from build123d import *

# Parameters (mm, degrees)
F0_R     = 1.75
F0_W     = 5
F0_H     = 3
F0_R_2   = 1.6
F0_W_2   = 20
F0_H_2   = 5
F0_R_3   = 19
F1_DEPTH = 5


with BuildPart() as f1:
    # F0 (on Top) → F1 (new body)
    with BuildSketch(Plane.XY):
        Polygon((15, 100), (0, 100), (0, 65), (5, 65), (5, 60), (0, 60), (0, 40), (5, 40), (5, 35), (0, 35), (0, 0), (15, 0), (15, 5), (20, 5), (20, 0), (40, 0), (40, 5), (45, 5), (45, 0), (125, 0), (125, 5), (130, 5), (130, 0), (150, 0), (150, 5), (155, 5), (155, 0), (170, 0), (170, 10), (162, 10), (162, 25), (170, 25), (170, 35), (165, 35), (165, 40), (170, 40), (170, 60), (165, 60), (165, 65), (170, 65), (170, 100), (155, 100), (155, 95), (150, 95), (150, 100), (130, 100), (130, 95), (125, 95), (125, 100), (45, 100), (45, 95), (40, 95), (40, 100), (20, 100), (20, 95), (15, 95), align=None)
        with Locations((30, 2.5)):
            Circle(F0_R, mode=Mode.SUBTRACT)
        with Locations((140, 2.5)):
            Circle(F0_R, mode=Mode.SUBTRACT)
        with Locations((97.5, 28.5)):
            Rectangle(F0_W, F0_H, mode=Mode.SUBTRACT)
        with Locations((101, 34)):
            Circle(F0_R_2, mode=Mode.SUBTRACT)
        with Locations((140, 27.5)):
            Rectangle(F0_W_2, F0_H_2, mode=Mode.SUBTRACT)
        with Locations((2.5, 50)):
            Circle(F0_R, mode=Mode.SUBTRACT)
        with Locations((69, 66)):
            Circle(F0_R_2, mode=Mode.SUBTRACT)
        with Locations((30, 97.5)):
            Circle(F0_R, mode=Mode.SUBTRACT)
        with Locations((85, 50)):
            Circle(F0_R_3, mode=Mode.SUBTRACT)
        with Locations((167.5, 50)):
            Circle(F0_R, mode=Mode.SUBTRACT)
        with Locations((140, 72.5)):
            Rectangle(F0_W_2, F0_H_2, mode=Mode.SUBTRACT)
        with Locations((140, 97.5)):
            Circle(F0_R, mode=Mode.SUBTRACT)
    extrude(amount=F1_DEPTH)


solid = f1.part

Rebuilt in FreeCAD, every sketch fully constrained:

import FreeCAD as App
import Part
import Sketcher
from FreeCAD import Vector

doc = App.newDocument("Part")
body = doc.addObject("PartDesign::Body", "Body")

# Sketch on XY plane
sketch1 = body.newObject("Sketcher::SketchObject", "Sketch")
sketch1.AttachmentSupport = (doc.getObject("XY_Plane"), [""])
sketch1.MapMode = "FlatFace"
sketch1.addGeometry([
    Part.LineSegment(Vector(15, 100, 0), Vector(0, 100, 0)),  # 0
    Part.LineSegment(Vector(0, 100, 0), Vector(0, 65, 0)),  # 1
    Part.LineSegment(Vector(0, 65, 0), Vector(5, 65, 0)),  # 2
    Part.LineSegment(Vector(5, 65, 0), Vector(5, 60, 0)),  # 3
    Part.LineSegment(Vector(5, 60, 0), Vector(0, 60, 0)),  # 4
    Part.LineSegment(Vector(0, 60, 0), Vector(0, 40, 0)),  # 5
    Part.LineSegment(Vector(0, 40, 0), Vector(5, 40, 0)),  # 6
    Part.LineSegment(Vector(5, 40, 0), Vector(5, 35, 0)),  # 7
    Part.LineSegment(Vector(5, 35, 0), Vector(0, 35, 0)),  # 8
    Part.LineSegment(Vector(0, 35, 0), Vector(0, 0, 0)),  # 9
    Part.LineSegment(Vector(0, 0, 0), Vector(15, 0, 0)),  # 10
    Part.LineSegment(Vector(15, 0, 0), Vector(15, 5, 0)),  # 11
    Part.LineSegment(Vector(15, 5, 0), Vector(20, 5, 0)),  # 12
    Part.LineSegment(Vector(20, 5, 0), Vector(20, 0, 0)),  # 13
    Part.LineSegment(Vector(20, 0, 0), Vector(40, 0, 0)),  # 14
    Part.LineSegment(Vector(40, 0, 0), Vector(40, 5, 0)),  # 15
    Part.LineSegment(Vector(40, 5, 0), Vector(45, 5, 0)),  # 16
    Part.LineSegment(Vector(45, 5, 0), Vector(45, 0, 0)),  # 17
    Part.LineSegment(Vector(45, 0, 0), Vector(125, 0, 0)),  # 18
    Part.LineSegment(Vector(125, 0, 0), Vector(125, 5, 0)),  # 19
    Part.LineSegment(Vector(125, 5, 0), Vector(130, 5, 0)),  # 20
    Part.LineSegment(Vector(130, 5, 0), Vector(130, 0, 0)),  # 21
    Part.LineSegment(Vector(130, 0, 0), Vector(150, 0, 0)),  # 22
    Part.LineSegment(Vector(150, 0, 0), Vector(150, 5, 0)),  # 23
    Part.LineSegment(Vector(150, 5, 0), Vector(155, 5, 0)),  # 24
    Part.LineSegment(Vector(155, 5, 0), Vector(155, 0, 0)),  # 25
    Part.LineSegment(Vector(155, 0, 0), Vector(170, 0, 0)),  # 26
    Part.LineSegment(Vector(170, 0, 0), Vector(170, 10, 0)),  # 27
    Part.LineSegment(Vector(170, 10, 0), Vector(162, 10, 0)),  # 28
    Part.LineSegment(Vector(162, 10, 0), Vector(162, 25, 0)),  # 29
    Part.LineSegment(Vector(162, 25, 0), Vector(170, 25, 0)),  # 30
    Part.LineSegment(Vector(170, 25, 0), Vector(170, 35, 0)),  # 31
    Part.LineSegment(Vector(170, 35, 0), Vector(165, 35, 0)),  # 32
    Part.LineSegment(Vector(165, 35, 0), Vector(165, 40, 0)),  # 33
    Part.LineSegment(Vector(165, 40, 0), Vector(170, 40, 0)),  # 34
    Part.LineSegment(Vector(170, 40, 0), Vector(170, 60, 0)),  # 35
    Part.LineSegment(Vector(170, 60, 0), Vector(165, 60, 0)),  # 36
    Part.LineSegment(Vector(165, 60, 0), Vector(165, 65, 0)),  # 37
    Part.LineSegment(Vector(165, 65, 0), Vector(170, 65, 0)),  # 38
    Part.LineSegment(Vector(170, 65, 0), Vector(170, 100, 0)),  # 39
    Part.LineSegment(Vector(170, 100, 0), Vector(155, 100, 0)),  # 40
    Part.LineSegment(Vector(155, 100, 0), Vector(155, 95, 0)),  # 41
    Part.LineSegment(Vector(155, 95, 0), Vector(150, 95, 0)),  # 42
    Part.LineSegment(Vector(150, 95, 0), Vector(150, 100, 0)),  # 43
    Part.LineSegment(Vector(150, 100, 0), Vector(130, 100, 0)),  # 44
    Part.LineSegment(Vector(130, 100, 0), Vector(130, 95, 0)),  # 45
    Part.LineSegment(Vector(130, 95, 0), Vector(125, 95, 0)),  # 46
    Part.LineSegment(Vector(125, 95, 0), Vector(125, 100, 0)),  # 47
    Part.LineSegment(Vector(125, 100, 0), Vector(45, 100, 0)),  # 48
    Part.LineSegment(Vector(45, 100, 0), Vector(45, 95, 0)),  # 49
    Part.LineSegment(Vector(45, 95, 0), Vector(40, 95, 0)),  # 50
    Part.LineSegment(Vector(40, 95, 0), Vector(40, 100, 0)),  # 51
    Part.LineSegment(Vector(40, 100, 0), Vector(20, 100, 0)),  # 52
    Part.LineSegment(Vector(20, 100, 0), Vector(20, 95, 0)),  # 53
    Part.LineSegment(Vector(20, 95, 0), Vector(15, 95, 0)),  # 54
    Part.LineSegment(Vector(15, 95, 0), Vector(15, 100, 0)),  # 55
    Part.Circle(Vector(30, 2.5, 0), Vector(0, 0, 1), 1.8),  # 56
    Part.Circle(Vector(2.5, 50, 0), Vector(0, 0, 1), 1.8),  # 57
    Part.Circle(Vector(140, 2.5, 0), Vector(0, 0, 1), 1.8),  # 58
    Part.LineSegment(Vector(100, 27, 0), Vector(95, 27, 0)),  # 59
    Part.LineSegment(Vector(95, 27, 0), Vector(95, 30, 0)),  # 60
    Part.LineSegment(Vector(95, 30, 0), Vector(100, 30, 0)),  # 61
    Part.LineSegment(Vector(100, 30, 0), Vector(100, 27, 0)),  # 62
    Part.Circle(Vector(101, 34, 0), Vector(0, 0, 1), 1.6),  # 63
    Part.Circle(Vector(85, 50, 0), Vector(0, 0, 1), 19),  # 64
    Part.LineSegment(Vector(150, 25, 0), Vector(130, 25, 0)),  # 65
    Part.LineSegment(Vector(130, 25, 0), Vector(130, 30, 0)),  # 66
    Part.LineSegment(Vector(130, 30, 0), Vector(150, 30, 0)),  # 67
    Part.LineSegment(Vector(150, 30, 0), Vector(150, 25, 0)),  # 68
    Part.Circle(Vector(167.5, 50, 0), Vector(0, 0, 1), 1.8),  # 69
    Part.Circle(Vector(69, 66, 0), Vector(0, 0, 1), 1.6),  # 70
    Part.Circle(Vector(30, 97.5, 0), Vector(0, 0, 1), 1.8),  # 71
    Part.LineSegment(Vector(150, 70, 0), Vector(130, 70, 0)),  # 72
    Part.LineSegment(Vector(130, 70, 0), Vector(130, 75, 0)),  # 73
    Part.LineSegment(Vector(130, 75, 0), Vector(150, 75, 0)),  # 74
    Part.LineSegment(Vector(150, 75, 0), Vector(150, 70, 0)),  # 75
    Part.Circle(Vector(140, 97.5, 0), Vector(0, 0, 1), 1.8),  # 76
], False)
sketch1.addConstraint([
    Sketcher.Constraint("Coincident", 0, 2, 1, 1),
    Sketcher.Constraint("Coincident", 1, 2, 2, 1),
    Sketcher.Constraint("Coincident", 2, 2, 3, 1),
    Sketcher.Constraint("Coincident", 3, 2, 4, 1),
    Sketcher.Constraint("Coincident", 4, 2, 5, 1),
    Sketcher.Constraint("Coincident", 5, 2, 6, 1),
    Sketcher.Constraint("Coincident", 6, 2, 7, 1),
    Sketcher.Constraint("Coincident", 7, 2, 8, 1),
    Sketcher.Constraint("Coincident", 8, 2, 9, 1),
    Sketcher.Constraint("Coincident", 9, 2, 10, 1),
    Sketcher.Constraint("Coincident", 10, 2, 11, 1),
    Sketcher.Constraint("Coincident", 11, 2, 12, 1),
    Sketcher.Constraint("Coincident", 12, 2, 13, 1),
    Sketcher.Constraint("Coincident", 13, 2, 14, 1),
    Sketcher.Constraint("Coincident", 14, 2, 15, 1),
    Sketcher.Constraint("Coincident", 15, 2, 16, 1),
    Sketcher.Constraint("Coincident", 16, 2, 17, 1),
    Sketcher.Constraint("Coincident", 17, 2, 18, 1),
    Sketcher.Constraint("Coincident", 18, 2, 19, 1),
    Sketcher.Constraint("Coincident", 19, 2, 20, 1),
    Sketcher.Constraint("Coincident", 20, 2, 21, 1),
    Sketcher.Constraint("Coincident", 21, 2, 22, 1),
    Sketcher.Constraint("Coincident", 22, 2, 23, 1),
    Sketcher.Constraint("Coincident", 23, 2, 24, 1),
    Sketcher.Constraint("Coincident", 24, 2, 25, 1),
    Sketcher.Constraint("Coincident", 25, 2, 26, 1),
    Sketcher.Constraint("Coincident", 26, 2, 27, 1),
    Sketcher.Constraint("Coincident", 27, 2, 28, 1),
    Sketcher.Constraint("Coincident", 28, 2, 29, 1),
    Sketcher.Constraint("Coincident", 29, 2, 30, 1),
    Sketcher.Constraint("Coincident", 30, 2, 31, 1),
    Sketcher.Constraint("Coincident", 31, 2, 32, 1),
    Sketcher.Constraint("Coincident", 32, 2, 33, 1),
    Sketcher.Constraint("Coincident", 33, 2, 34, 1),
    Sketcher.Constraint("Coincident", 34, 2, 35, 1),
    Sketcher.Constraint("Coincident", 35, 2, 36, 1),
    Sketcher.Constraint("Coincident", 36, 2, 37, 1),
    Sketcher.Constraint("Coincident", 37, 2, 38, 1),
    Sketcher.Constraint("Coincident", 38, 2, 39, 1),
    Sketcher.Constraint("Coincident", 39, 2, 40, 1),
    Sketcher.Constraint("Coincident", 40, 2, 41, 1),
    Sketcher.Constraint("Coincident", 41, 2, 42, 1),
    Sketcher.Constraint("Coincident", 42, 2, 43, 1),
    Sketcher.Constraint("Coincident", 43, 2, 44, 1),
    Sketcher.Constraint("Coincident", 44, 2, 45, 1),
    Sketcher.Constraint("Coincident", 45, 2, 46, 1),
    Sketcher.Constraint("Coincident", 46, 2, 47, 1),
    Sketcher.Constraint("Coincident", 47, 2, 48, 1),
    Sketcher.Constraint("Coincident", 48, 2, 49, 1),
    Sketcher.Constraint("Coincident", 49, 2, 50, 1),
    Sketcher.Constraint("Coincident", 50, 2, 51, 1),
    Sketcher.Constraint("Coincident", 51, 2, 52, 1),
    Sketcher.Constraint("Coincident", 52, 2, 53, 1),
    Sketcher.Constraint("Coincident", 53, 2, 54, 1),
    Sketcher.Constraint("Coincident", 54, 2, 55, 1),
    Sketcher.Constraint("Coincident", 55, 2, 0, 1),
    Sketcher.Constraint("Coincident", 59, 2, 60, 1),
    Sketcher.Constraint("Coincident", 60, 2, 61, 1),
    Sketcher.Constraint("Coincident", 61, 2, 62, 1),
    Sketcher.Constraint("Coincident", 62, 2, 59, 1),
    Sketcher.Constraint("Coincident", 65, 2, 66, 1),
    Sketcher.Constraint("Coincident", 66, 2, 67, 1),
    Sketcher.Constraint("Coincident", 67, 2, 68, 1),
    Sketcher.Constraint("Coincident", 68, 2, 65, 1),
    Sketcher.Constraint("Coincident", 72, 2, 73, 1),
    Sketcher.Constraint("Coincident", 73, 2, 74, 1),
    Sketcher.Constraint("Coincident", 74, 2, 75, 1),
    Sketcher.Constraint("Coincident", 75, 2, 72, 1),
    Sketcher.Constraint("Horizontal", 0),
    Sketcher.Constraint("Vertical", 1),
    Sketcher.Constraint("Horizontal", 2),
    Sketcher.Constraint("Vertical", 3),
    Sketcher.Constraint("Horizontal", 4),
    Sketcher.Constraint("Vertical", 5),
    Sketcher.Constraint("Horizontal", 6),
    Sketcher.Constraint("Vertical", 7),
    Sketcher.Constraint("Horizontal", 8),
    Sketcher.Constraint("Vertical", 9),
    Sketcher.Constraint("Horizontal", 10),
    Sketcher.Constraint("Vertical", 11),
    Sketcher.Constraint("Horizontal", 12),
    Sketcher.Constraint("Vertical", 13),
    Sketcher.Constraint("Horizontal", 14),
    Sketcher.Constraint("Vertical", 15),
    Sketcher.Constraint("Horizontal", 16),
    Sketcher.Constraint("Vertical", 17),
    Sketcher.Constraint("Horizontal", 18),
    Sketcher.Constraint("Vertical", 19),
    Sketcher.Constraint("Horizontal", 20),
    Sketcher.Constraint("Vertical", 21),
    Sketcher.Constraint("Horizontal", 22),
    Sketcher.Constraint("Vertical", 23),
    Sketcher.Constraint("Horizontal", 24),
    Sketcher.Constraint("Vertical", 25),
    Sketcher.Constraint("Horizontal", 26),
    Sketcher.Constraint("Vertical", 27),
    Sketcher.Constraint("Horizontal", 28),
    Sketcher.Constraint("Vertical", 29),
    Sketcher.Constraint("Horizontal", 30),
    Sketcher.Constraint("Vertical", 31),
    Sketcher.Constraint("Horizontal", 32),
    Sketcher.Constraint("Vertical", 33),
    Sketcher.Constraint("Horizontal", 34),
    Sketcher.Constraint("Vertical", 35),
    Sketcher.Constraint("Horizontal", 36),
    Sketcher.Constraint("Vertical", 37),
    Sketcher.Constraint("Horizontal", 38),
    Sketcher.Constraint("Vertical", 39),
    Sketcher.Constraint("Horizontal", 40),
    Sketcher.Constraint("Vertical", 41),
    Sketcher.Constraint("Horizontal", 42),
    Sketcher.Constraint("Vertical", 43),
    Sketcher.Constraint("Horizontal", 44),
    Sketcher.Constraint("Vertical", 45),
    Sketcher.Constraint("Horizontal", 46),
    Sketcher.Constraint("Vertical", 47),
    Sketcher.Constraint("Horizontal", 48),
    Sketcher.Constraint("Vertical", 49),
    Sketcher.Constraint("Horizontal", 50),
    Sketcher.Constraint("Vertical", 51),
    Sketcher.Constraint("Horizontal", 52),
    Sketcher.Constraint("Vertical", 53),
    Sketcher.Constraint("Horizontal", 54),
    Sketcher.Constraint("Vertical", 55),
    Sketcher.Constraint("Horizontal", 59),
    Sketcher.Constraint("Vertical", 60),
    Sketcher.Constraint("Horizontal", 61),
    Sketcher.Constraint("Vertical", 62),
    Sketcher.Constraint("Horizontal", 65),
    Sketcher.Constraint("Vertical", 66),
    Sketcher.Constraint("Horizontal", 67),
    Sketcher.Constraint("Vertical", 68),
    Sketcher.Constraint("Horizontal", 72),
    Sketcher.Constraint("Vertical", 73),
    Sketcher.Constraint("Horizontal", 74),
    Sketcher.Constraint("Vertical", 75),
    Sketcher.Constraint("Coincident", 9, 2, -1, 1),
    Sketcher.Constraint("Equal", 56, 57),
    Sketcher.Constraint("Equal", 57, 58),
    Sketcher.Constraint("Equal", 58, 69),
    Sketcher.Constraint("Equal", 63, 70),
    Sketcher.Constraint("Equal", 69, 71),
    Sketcher.Constraint("Equal", 71, 76),
    Sketcher.Constraint("PointOnObject", 0, 2, -2),
    Sketcher.Constraint("PointOnObject", 4, 2, -2),
    Sketcher.Constraint("PointOnObject", 13, 2, -1),
    Sketcher.Constraint("PointOnObject", 17, 2, -1),
    Sketcher.Constraint("PointOnObject", 21, 2, -1),
    Sketcher.Constraint("PointOnObject", 25, 2, -1),
    Sketcher.Constraint("Horizontal", 56, 3, 58, 3),
    Sketcher.Constraint("Horizontal", 57, 3, 64, 3),
    Sketcher.Constraint("Horizontal", 64, 3, 69, 3),
    Sketcher.Constraint("Horizontal", 71, 3, 76, 3),
    Sketcher.Constraint("Horizontal", 12, 2, 15, 2),
    Sketcher.Constraint("Horizontal", 16, 2, 19, 2),
    Sketcher.Constraint("Horizontal", 20, 2, 23, 2),
    Sketcher.Constraint("Horizontal", 8, 2, 31, 2),
    Sketcher.Constraint("Horizontal", 6, 2, 33, 2),
    Sketcher.Constraint("Horizontal", 4, 2, 35, 2),
    Sketcher.Constraint("Horizontal", 2, 2, 37, 2),
    Sketcher.Constraint("Horizontal", 0, 2, 39, 2),
    Sketcher.Constraint("Horizontal", 40, 2, 43, 2),
    Sketcher.Constraint("Horizontal", 42, 2, 45, 2),
    Sketcher.Constraint("Horizontal", 44, 2, 47, 2),
    Sketcher.Constraint("Horizontal", 46, 2, 49, 2),
    Sketcher.Constraint("Horizontal", 48, 2, 51, 2),
    Sketcher.Constraint("Horizontal", 50, 2, 53, 2),
    Sketcher.Constraint("Horizontal", 30, 2, 65, 2),
    Sketcher.Constraint("Horizontal", 61, 2, 66, 2),
    Sketcher.Constraint("Vertical", 56, 3, 71, 3),
    Sketcher.Constraint("Vertical", 58, 3, 76, 3),
    Sketcher.Constraint("Vertical", 3, 2, 6, 2),
    Sketcher.Constraint("Vertical", 27, 2, 30, 2),
    Sketcher.Constraint("Vertical", 31, 2, 34, 2),
    Sketcher.Constraint("Vertical", 33, 2, 36, 2),
    Sketcher.Constraint("Vertical", 35, 2, 38, 2),
    Sketcher.Constraint("Vertical", 25, 2, 40, 2),
    Sketcher.Constraint("Vertical", 23, 2, 42, 2),
    Sketcher.Constraint("Vertical", 21, 2, 44, 2),
    Sketcher.Constraint("Vertical", 19, 2, 46, 2),
    Sketcher.Constraint("Vertical", 17, 2, 48, 2),
    Sketcher.Constraint("Vertical", 15, 2, 50, 2),
    Sketcher.Constraint("Vertical", 13, 2, 52, 2),
    Sketcher.Constraint("Vertical", 11, 2, 54, 2),
    Sketcher.Constraint("Vertical", 45, 2, 65, 2),
    Sketcher.Constraint("Vertical", 43, 2, 67, 2),
    Sketcher.Constraint("Vertical", 66, 2, 72, 2),
    Sketcher.Constraint("Vertical", 68, 2, 74, 2),
    Sketcher.Constraint("Equal", 8, 12),
    Sketcher.Constraint("Equal", 12, 16),
    Sketcher.Constraint("Equal", 16, 20),
    Sketcher.Constraint("Equal", 14, 22),
    Sketcher.Constraint("Equal", 20, 24),
    Sketcher.Constraint("Equal", 10, 26),
    Sketcher.Constraint("Equal", 24, 32),
    Sketcher.Constraint("Equal", 54, 59),
    Sketcher.Constraint("Equal", 61, 3),
    Sketcher.Constraint("Equal", 74, 5),
    Sketcher.Constraint("Equal", 3, 7),
    Sketcher.Constraint("Equal", 1, 9),
    Sketcher.Constraint("Equal", 7, 11),
    Sketcher.Constraint("Equal", 40, 29),
    Sketcher.Constraint("Equal", 27, 31),
    Sketcher.Constraint("Equal", 37, 41),
    Sketcher.Constraint("Equal", 55, 66),
    Sketcher.Constraint("Equal", 68, 73),
    Sketcher.Constraint("Diameter", 64, 38.0),
    Sketcher.Constraint("Diameter", 56, 3.5),
    Sketcher.Constraint("Diameter", 63, 3.2),
    Sketcher.Constraint("DistanceX", 0, 2, 0, 1, 15.0),
    Sketcher.Constraint("DistanceX", 2, 1, 2, 2, 5.0),
    Sketcher.Constraint("DistanceX", 14, 1, 14, 2, 20.0),
    Sketcher.Constraint("DistanceX", 18, 1, 18, 2, 80.0),
    Sketcher.Constraint("DistanceX", 28, 2, 28, 1, 8.0),
    Sketcher.Constraint("DistanceY", 1, 2, 1, 1, 35.0),
    Sketcher.Constraint("DistanceY", 60, 1, 60, 2, 3.0),
    Sketcher.Constraint("DistanceX", -1, 1, 56, 3, 30.0),
    Sketcher.Constraint("DistanceY", -1, 1, 57, 3, 50.0),
    Sketcher.Constraint("DistanceX", -1, 1, 58, 3, 140.0),
    Sketcher.Constraint("DistanceX", -1, 1, 63, 3, 101.0),
    Sketcher.Constraint("DistanceY", -1, 1, 63, 3, 34.0),
    Sketcher.Constraint("DistanceX", -1, 1, 64, 3, 85.0),
    Sketcher.Constraint("DistanceX", -1, 1, 70, 3, 69.0),
    Sketcher.Constraint("DistanceY", -1, 1, 70, 3, 66.0),
    Sketcher.Constraint("DistanceX", -1, 1, 59, 2, 95.0),
    Sketcher.Constraint("DistanceY", -1, 1, 72, 2, 70.0),
    Sketcher.Constraint("DistanceY", -1, 1, 56, 3, 2.5),
    Sketcher.Constraint("DistanceX", -1, 1, 57, 3, 2.5),
    Sketcher.Constraint("DistanceX", -1, 1, 69, 3, 167.5),
    Sketcher.Constraint("DistanceY", -1, 1, 71, 3, 97.5),
])
pad1 = body.newObject("PartDesign::Pad", "Pad")
pad1.Profile = sketch1
pad1.Length = 5

doc.recompute()
